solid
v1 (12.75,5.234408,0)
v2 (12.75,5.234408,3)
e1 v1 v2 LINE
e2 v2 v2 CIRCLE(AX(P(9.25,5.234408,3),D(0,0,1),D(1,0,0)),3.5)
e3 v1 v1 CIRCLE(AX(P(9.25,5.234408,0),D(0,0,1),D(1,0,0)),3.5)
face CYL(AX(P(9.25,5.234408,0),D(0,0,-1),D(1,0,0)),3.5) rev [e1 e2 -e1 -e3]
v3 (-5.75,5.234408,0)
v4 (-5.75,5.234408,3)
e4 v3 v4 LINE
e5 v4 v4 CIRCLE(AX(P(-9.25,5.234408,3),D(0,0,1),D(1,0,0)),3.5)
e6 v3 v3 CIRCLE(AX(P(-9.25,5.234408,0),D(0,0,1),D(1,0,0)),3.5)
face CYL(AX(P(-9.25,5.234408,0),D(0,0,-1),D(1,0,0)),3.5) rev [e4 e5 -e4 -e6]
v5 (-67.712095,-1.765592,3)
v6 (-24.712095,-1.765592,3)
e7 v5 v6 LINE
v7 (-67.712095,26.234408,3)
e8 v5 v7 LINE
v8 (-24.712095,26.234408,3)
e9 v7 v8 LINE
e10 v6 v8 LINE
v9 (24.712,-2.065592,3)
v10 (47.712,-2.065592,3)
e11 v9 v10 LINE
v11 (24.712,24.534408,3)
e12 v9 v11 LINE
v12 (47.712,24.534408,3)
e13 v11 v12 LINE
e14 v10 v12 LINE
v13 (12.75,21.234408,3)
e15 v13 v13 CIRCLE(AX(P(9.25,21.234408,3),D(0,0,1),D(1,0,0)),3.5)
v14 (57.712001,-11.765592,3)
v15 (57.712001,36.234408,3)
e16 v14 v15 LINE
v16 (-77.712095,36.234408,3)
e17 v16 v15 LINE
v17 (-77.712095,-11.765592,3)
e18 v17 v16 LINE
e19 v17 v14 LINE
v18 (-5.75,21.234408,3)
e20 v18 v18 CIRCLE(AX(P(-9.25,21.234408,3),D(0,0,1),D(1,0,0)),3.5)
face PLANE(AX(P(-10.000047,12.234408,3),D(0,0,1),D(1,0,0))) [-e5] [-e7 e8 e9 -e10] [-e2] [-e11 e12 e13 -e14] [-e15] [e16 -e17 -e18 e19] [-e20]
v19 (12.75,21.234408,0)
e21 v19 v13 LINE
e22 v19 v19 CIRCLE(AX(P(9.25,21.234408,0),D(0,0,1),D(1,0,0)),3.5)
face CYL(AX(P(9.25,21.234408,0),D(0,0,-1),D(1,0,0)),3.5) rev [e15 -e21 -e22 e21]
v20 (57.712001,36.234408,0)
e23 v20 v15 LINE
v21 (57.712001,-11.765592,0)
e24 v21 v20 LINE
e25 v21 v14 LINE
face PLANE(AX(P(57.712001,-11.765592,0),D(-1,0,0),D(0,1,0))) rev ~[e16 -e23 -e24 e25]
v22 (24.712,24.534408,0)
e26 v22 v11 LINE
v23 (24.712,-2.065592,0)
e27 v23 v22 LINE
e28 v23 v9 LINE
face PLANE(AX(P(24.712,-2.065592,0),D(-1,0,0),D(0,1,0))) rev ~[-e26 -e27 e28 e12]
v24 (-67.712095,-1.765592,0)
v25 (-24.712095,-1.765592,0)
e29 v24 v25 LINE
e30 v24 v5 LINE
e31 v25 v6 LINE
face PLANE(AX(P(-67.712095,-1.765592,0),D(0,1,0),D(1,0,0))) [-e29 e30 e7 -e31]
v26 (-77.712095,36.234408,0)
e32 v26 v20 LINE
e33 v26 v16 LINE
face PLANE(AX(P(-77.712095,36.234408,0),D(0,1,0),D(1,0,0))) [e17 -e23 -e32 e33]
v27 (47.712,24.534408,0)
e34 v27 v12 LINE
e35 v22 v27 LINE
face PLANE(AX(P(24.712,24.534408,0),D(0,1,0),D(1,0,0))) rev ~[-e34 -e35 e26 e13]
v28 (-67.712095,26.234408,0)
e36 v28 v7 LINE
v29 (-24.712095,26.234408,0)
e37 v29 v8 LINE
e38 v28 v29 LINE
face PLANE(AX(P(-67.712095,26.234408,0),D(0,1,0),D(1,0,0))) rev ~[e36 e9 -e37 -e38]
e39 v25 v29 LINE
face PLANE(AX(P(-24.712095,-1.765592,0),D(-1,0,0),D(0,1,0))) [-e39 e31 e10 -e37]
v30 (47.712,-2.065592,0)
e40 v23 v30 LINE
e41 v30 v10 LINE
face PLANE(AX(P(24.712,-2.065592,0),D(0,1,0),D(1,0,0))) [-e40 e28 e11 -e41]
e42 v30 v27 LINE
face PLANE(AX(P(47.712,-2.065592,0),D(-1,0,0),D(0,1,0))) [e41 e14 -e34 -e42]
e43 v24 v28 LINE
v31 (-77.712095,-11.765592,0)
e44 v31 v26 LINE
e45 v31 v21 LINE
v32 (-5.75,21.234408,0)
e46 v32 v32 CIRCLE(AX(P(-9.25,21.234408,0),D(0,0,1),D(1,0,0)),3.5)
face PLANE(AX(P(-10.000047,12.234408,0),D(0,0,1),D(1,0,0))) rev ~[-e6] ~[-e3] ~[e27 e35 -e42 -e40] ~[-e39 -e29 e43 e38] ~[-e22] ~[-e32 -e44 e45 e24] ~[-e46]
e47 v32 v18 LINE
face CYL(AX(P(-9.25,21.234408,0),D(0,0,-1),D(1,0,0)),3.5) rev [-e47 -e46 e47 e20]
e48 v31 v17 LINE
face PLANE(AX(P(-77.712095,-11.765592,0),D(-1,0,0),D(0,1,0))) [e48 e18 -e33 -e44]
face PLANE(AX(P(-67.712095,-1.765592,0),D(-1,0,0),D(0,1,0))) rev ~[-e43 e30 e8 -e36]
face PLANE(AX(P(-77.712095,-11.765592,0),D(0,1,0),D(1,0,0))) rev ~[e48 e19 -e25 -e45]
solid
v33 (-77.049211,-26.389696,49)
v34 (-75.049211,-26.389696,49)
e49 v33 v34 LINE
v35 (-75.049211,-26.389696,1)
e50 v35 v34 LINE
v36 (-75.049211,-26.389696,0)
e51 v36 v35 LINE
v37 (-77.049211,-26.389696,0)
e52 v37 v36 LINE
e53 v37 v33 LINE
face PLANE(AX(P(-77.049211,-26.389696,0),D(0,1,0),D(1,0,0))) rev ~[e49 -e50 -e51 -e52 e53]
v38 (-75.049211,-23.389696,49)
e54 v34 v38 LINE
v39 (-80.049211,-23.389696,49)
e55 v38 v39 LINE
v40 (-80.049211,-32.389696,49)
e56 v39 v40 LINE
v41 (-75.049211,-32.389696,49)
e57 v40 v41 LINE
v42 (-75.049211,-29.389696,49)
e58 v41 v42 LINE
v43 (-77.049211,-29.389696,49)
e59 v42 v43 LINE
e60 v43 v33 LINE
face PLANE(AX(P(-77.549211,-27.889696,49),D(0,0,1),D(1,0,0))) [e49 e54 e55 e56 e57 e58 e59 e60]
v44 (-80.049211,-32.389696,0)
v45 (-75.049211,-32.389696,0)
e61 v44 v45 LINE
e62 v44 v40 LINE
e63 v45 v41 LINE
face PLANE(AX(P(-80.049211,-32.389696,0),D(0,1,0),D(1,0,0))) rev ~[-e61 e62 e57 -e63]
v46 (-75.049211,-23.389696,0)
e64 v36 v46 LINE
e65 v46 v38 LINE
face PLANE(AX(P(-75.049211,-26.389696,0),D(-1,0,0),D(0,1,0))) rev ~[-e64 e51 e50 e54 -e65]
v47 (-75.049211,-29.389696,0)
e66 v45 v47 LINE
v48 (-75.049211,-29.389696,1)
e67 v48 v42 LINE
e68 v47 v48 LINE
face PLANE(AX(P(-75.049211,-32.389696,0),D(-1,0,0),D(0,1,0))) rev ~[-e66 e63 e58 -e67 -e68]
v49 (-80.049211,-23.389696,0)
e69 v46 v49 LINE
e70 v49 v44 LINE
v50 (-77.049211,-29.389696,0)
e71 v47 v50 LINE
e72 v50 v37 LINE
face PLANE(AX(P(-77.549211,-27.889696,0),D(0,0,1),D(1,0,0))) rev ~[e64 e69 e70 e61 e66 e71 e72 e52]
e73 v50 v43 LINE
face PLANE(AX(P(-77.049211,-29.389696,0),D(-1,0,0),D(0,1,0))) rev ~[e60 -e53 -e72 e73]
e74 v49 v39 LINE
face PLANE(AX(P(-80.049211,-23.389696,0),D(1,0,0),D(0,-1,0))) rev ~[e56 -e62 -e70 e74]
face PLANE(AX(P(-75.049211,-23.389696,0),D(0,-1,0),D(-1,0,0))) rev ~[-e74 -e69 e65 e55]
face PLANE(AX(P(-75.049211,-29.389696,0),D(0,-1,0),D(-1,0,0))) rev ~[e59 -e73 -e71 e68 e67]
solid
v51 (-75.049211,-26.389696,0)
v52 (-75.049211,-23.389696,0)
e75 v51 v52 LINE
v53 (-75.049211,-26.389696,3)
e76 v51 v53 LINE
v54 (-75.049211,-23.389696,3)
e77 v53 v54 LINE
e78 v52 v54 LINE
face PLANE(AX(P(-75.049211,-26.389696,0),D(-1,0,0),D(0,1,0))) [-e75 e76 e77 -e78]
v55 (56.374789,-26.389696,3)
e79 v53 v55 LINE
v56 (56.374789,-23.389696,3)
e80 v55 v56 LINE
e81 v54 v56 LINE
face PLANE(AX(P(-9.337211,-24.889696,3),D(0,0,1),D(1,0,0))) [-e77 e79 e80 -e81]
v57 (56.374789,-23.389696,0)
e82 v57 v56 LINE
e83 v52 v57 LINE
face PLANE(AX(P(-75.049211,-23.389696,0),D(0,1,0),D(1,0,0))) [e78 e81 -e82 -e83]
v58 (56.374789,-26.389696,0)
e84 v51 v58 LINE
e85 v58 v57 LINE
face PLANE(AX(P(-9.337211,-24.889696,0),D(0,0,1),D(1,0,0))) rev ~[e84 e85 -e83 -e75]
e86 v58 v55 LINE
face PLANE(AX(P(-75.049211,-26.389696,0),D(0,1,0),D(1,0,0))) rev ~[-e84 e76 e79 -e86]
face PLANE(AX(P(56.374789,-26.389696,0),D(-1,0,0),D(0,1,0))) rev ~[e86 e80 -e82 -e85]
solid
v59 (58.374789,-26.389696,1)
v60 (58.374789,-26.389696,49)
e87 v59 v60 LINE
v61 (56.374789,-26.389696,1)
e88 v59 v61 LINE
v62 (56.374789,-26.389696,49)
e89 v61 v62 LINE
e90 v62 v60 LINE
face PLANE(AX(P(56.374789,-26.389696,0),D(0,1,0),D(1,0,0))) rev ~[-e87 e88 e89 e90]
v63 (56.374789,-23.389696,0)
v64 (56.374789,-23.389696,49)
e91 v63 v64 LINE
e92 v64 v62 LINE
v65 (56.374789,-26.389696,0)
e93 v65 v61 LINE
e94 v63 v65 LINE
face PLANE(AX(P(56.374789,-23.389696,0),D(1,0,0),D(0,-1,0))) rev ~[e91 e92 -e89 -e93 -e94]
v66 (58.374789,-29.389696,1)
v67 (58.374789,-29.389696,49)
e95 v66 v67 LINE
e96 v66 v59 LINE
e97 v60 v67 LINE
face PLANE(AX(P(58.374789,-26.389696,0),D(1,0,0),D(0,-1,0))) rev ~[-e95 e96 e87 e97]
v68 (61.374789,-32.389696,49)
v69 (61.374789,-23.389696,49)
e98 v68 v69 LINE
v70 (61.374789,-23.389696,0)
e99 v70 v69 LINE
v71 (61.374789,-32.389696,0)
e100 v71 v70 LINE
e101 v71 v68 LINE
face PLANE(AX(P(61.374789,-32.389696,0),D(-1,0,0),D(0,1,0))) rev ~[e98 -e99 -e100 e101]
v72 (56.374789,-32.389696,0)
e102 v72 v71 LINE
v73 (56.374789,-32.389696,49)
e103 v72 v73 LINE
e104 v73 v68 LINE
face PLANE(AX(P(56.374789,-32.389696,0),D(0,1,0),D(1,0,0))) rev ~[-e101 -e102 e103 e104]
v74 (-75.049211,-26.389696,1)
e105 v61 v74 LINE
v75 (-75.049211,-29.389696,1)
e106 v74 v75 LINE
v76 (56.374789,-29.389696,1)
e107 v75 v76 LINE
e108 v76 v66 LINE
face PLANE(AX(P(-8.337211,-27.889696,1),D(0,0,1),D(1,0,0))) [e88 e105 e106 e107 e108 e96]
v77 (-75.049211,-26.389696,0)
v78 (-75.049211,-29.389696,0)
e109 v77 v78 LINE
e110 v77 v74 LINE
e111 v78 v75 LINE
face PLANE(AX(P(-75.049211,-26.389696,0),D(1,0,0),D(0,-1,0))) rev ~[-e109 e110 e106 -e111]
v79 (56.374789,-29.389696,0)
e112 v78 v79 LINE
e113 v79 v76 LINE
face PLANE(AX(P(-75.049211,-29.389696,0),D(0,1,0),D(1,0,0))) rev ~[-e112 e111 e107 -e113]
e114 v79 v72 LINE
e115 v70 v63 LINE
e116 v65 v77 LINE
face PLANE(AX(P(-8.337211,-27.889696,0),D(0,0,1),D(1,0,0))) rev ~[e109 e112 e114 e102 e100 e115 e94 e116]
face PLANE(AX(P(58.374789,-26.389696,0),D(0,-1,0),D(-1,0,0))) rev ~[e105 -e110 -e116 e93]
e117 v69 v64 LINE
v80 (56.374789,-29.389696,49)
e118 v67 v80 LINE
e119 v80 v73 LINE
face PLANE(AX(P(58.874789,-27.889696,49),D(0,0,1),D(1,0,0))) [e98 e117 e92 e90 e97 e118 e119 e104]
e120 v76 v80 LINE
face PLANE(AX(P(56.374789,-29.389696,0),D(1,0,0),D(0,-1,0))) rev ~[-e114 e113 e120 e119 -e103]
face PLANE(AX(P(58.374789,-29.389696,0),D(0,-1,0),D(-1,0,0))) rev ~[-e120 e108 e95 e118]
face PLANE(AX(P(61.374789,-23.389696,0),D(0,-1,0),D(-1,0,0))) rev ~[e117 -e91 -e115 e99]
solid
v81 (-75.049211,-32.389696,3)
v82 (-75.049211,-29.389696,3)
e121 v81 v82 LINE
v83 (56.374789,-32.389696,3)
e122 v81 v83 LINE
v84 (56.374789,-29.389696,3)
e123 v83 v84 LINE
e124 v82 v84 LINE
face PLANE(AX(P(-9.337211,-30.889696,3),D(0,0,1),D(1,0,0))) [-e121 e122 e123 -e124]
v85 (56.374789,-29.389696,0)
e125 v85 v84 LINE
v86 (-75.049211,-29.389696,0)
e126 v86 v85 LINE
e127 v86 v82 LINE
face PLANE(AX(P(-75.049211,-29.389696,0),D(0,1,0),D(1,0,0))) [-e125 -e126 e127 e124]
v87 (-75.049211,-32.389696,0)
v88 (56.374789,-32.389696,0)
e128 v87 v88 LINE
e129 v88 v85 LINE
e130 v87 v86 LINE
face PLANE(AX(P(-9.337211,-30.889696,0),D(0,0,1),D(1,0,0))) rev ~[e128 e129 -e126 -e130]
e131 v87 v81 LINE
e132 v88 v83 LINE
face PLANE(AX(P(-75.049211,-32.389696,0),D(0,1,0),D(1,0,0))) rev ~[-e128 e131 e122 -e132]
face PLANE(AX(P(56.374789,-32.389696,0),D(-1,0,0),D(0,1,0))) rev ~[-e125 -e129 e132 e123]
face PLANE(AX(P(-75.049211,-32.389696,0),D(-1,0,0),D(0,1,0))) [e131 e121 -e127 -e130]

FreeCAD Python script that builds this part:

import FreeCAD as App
import Part
import Sketcher

V = App.Vector
Q = App.Units.Quantity


def add_polygon(sketch, points):
    """Adds a closed chain of lines whose ends are joined by coincident constraints."""
    first, n = sketch.GeometryCount, len(points)
    for a, b in zip(points, points[1:] + points[:1]):
        sketch.addGeometry(Part.LineSegment(App.Vector(*a, 0), App.Vector(*b, 0)), False)
    for i in range(n):
        sketch.addConstraint(Sketcher.Constraint("Coincident", first + i, 2, first + (i + 1) % n, 1))

doc = App.newDocument("Part")
body = doc.addObject("PartDesign::Body", "Body")

# Sketch on XY plane
sketch1 = body.newObject("Sketcher::SketchObject", "Sketch")
sketch1.AttachmentSupport = (doc.getObject("XY_Plane"), [""])
sketch1.MapMode = "FlatFace"
add_polygon(sketch1, [(-77.7, 36.2), (-77.7, -11.8), (57.7, -11.8), (57.7, 36.2)])  # lines 0-3
sketch1.addGeometry(Part.Circle(V(-9.2, 5.2, 0), V(0, 0, 1), 3.5), False)  # 4
sketch1.addGeometry(Part.Circle(V(9.2, 5.2, 0), V(0, 0, 1), 3.5), False)  # 5
add_polygon(sketch1, [(47.7, -2.1), (24.7, -2.1), (24.7, 24.5), (47.7, 24.5)])  # lines 6-9
add_polygon(sketch1, [(-24.7, -1.8), (-67.7, -1.8), (-67.7, 26.2), (-24.7, 26.2)])  # lines 10-13
sketch1.addGeometry(Part.Circle(V(-9.2, 21.2, 0), V(0, 0, 1), 3.5), False)  # 14
sketch1.addGeometry(Part.Circle(V(9.2, 21.2, 0), V(0, 0, 1), 3.5), False)  # 15
sketch1.addConstraint(Sketcher.Constraint("Vertical", 0))
sketch1.addConstraint(Sketcher.Constraint("Horizontal", 1))
sketch1.addConstraint(Sketcher.Constraint("Vertical", 2))
sketch1.addConstraint(Sketcher.Constraint("Horizontal", 3))
sketch1.addConstraint(Sketcher.Constraint("Horizontal", 6))
sketch1.addConstraint(Sketcher.Constraint("Vertical", 7))
sketch1.addConstraint(Sketcher.Constraint("Horizontal", 8))
sketch1.addConstraint(Sketcher.Constraint("Vertical", 9))
sketch1.addConstraint(Sketcher.Constraint("Horizontal", 10))
sketch1.addConstraint(Sketcher.Constraint("Vertical", 11))
sketch1.addConstraint(Sketcher.Constraint("Horizontal", 12))
sketch1.addConstraint(Sketcher.Constraint("Vertical", 13))
sketch1.addConstraint(Sketcher.Constraint("Equal", 4, 5))
sketch1.addConstraint(Sketcher.Constraint("Equal", 5, 14))
sketch1.addConstraint(Sketcher.Constraint("Equal", 14, 15))
sketch1.addConstraint(Sketcher.Constraint("Symmetric", 4, 3, 5, 3, -2))
sketch1.addConstraint(Sketcher.Constraint("Symmetric", 14, 3, 15, 3, -2))
sketch1.addConstraint(Sketcher.Constraint("Vertical", 4, 3, 14, 3))
sketch1.addConstraint(Sketcher.Constraint("Diameter", 4, Q("7 mm")))
sketch1.addConstraint(Sketcher.Constraint("DistanceX", 6, 2, 6, 1, Q("23 mm")))
sketch1.addConstraint(Sketcher.Constraint("DistanceX", 10, 2, 10, 1, Q("43 mm")))
sketch1.addConstraint(Sketcher.Constraint("DistanceY", 0, 2, 0, 1, Q("48 mm")))
sketch1.addConstraint(Sketcher.Constraint("DistanceY", 11, 1, 11, 2, Q("28 mm")))
sketch1.addConstraint(Sketcher.Constraint("DistanceY", 7, 1, 7, 2, Q("26.6 mm")))
sketch1.addConstraint(Sketcher.Constraint("DistanceY", 4, 3, 14, 3, Q("16 mm")))
sketch1.addConstraint(Sketcher.Constraint("DistanceY", 0, 2, 4, 3, Q("17 mm")))
sketch1.addConstraint(Sketcher.Constraint("DistanceX", 6, 2, 1, 2, Q("33 mm")))
sketch1.addConstraint(Sketcher.Constraint("DistanceX", 0, 2, 10, 2, Q("10 mm")))
sketch1.addConstraint(Sketcher.Constraint("DistanceY", 0, 2, 10, 2, Q("10 mm")))
sketch1.addConstraint(Sketcher.Constraint("DistanceX", 4, 3, 5, 3, Q("18.5 mm")))
sketch1.addConstraint(Sketcher.Constraint("DistanceY", 6, 2, 5, 3, Q("7.3 mm")))
sketch1.addConstraint(Sketcher.Constraint("DistanceX", -1, 1, 1, 2, Q("57.712001 mm")))
sketch1.addConstraint(Sketcher.Constraint("DistanceX", 1, 1, 1, 2, Q("135.424095 mm")))
sketch1.addConstraint(Sketcher.Constraint("DistanceY", -1, 1, 4, 3, Q("5.234408 mm")))
pad1 = body.newObject("PartDesign::Pad", "Pad")
pad1.Profile = sketch1
pad1.Length = 3
body2 = doc.addObject("PartDesign::Body", "Body001")
body2.AllowCompound = True

# Sketch on XY plane
sketch2 = body2.newObject("Sketcher::SketchObject", "Sketch001")
sketch2.AttachmentSupport = (doc.getObject("XY_Plane001"), [""])
sketch2.MapMode = "FlatFace"
add_polygon(sketch2, [(56.4, -23.4), (56.4, -26.4), (58.4, -26.4), (58.4, -29.4), (56.4, -29.4), (56.4, -32.4), (61.4, -32.4), (61.4, -23.4)])  # lines 0-7
add_polygon(sketch2, [(-77, -29.4), (-77, -26.4), (-75, -26.4), (-75, -23.4), (-80, -23.4), (-80, -32.4), (-75, -32.4), (-75, -29.4)])  # lines 8-15
sketch2.addConstraint(Sketcher.Constraint("Vertical", 0))
sketch2.addConstraint(Sketcher.Constraint("Horizontal", 1))
sketch2.addConstraint(Sketcher.Constraint("Vertical", 2))
sketch2.addConstraint(Sketcher.Constraint("Horizontal", 3))
sketch2.addConstraint(Sketcher.Constraint("Vertical", 4))
sketch2.addConstraint(Sketcher.Constraint("Horizontal", 5))
sketch2.addConstraint(Sketcher.Constraint("Vertical", 6))
sketch2.addConstraint(Sketcher.Constraint("Horizontal", 7))
sketch2.addConstraint(Sketcher.Constraint("Vertical", 8))
sketch2.addConstraint(Sketcher.Constraint("Horizontal", 9))
sketch2.addConstraint(Sketcher.Constraint("Vertical", 10))
sketch2.addConstraint(Sketcher.Constraint("Horizontal", 11))
sketch2.addConstraint(Sketcher.Constraint("Vertical", 12))
sketch2.addConstraint(Sketcher.Constraint("Horizontal", 13))
sketch2.addConstraint(Sketcher.Constraint("Vertical", 14))
sketch2.addConstraint(Sketcher.Constraint("Horizontal", 15))
sketch2.addConstraint(Sketcher.Constraint("Horizontal", 1, 2, 8, 2))
sketch2.addConstraint(Sketcher.Constraint("Horizontal", 7, 2, 10, 2))
sketch2.addConstraint(Sketcher.Constraint("Horizontal", 5, 2, 12, 2))
sketch2.addConstraint(Sketcher.Constraint("Horizontal", 3, 2, 14, 2))
sketch2.addConstraint(Sketcher.Constraint("Vertical", 0, 2, 3, 2))
sketch2.addConstraint(Sketcher.Constraint("Vertical", 10, 2, 13, 2))
sketch2.addConstraint(Sketcher.Constraint("Equal", 3, 9))
sketch2.addConstraint(Sketcher.Constraint("Equal", 7, 11))
sketch2.addConstraint(Sketcher.Constraint("Equal", 0, 2))
sketch2.addConstraint(Sketcher.Constraint("Equal", 2, 4))
sketch2.addConstraint(Sketcher.Constraint("DistanceX", 1, 1, 1, 2, Q("2 mm")))
sketch2.addConstraint(Sketcher.Constraint("DistanceX", 5, 1, 5, 2, Q("5 mm")))
sketch2.addConstraint(Sketcher.Constraint("DistanceY", 0, 2, 0, 1, Q("3 mm")))
sketch2.addConstraint(Sketcher.Constraint("DistanceX", 8, 2, 0, 2, Q("133.424 mm")))
sketch2.addConstraint(Sketcher.Constraint("DistanceX", -1, 1, 0, 2, Q("56.374789 mm")))
sketch2.addConstraint(Sketcher.Constraint("DistanceY", 0, 2, -1, 1, Q("26.389696 mm")))
pad2 = body2.newObject("PartDesign::Pad", "Pad001")
pad2.Profile = sketch2
pad2.Length = 49

# Sketch on XY plane
sketch3 = body2.newObject("Sketcher::SketchObject", "Sketch002")
sketch3.AttachmentSupport = (doc.getObject("XY_Plane001"), [""])
sketch3.MapMode = "FlatFace"
add_polygon(sketch3, [(-75, -26.4), (-75, -29.4), (58.4, -29.4), (58.4, -26.4)])  # lines 0-3
sketch3.addConstraint(Sketcher.Constraint("Vertical", 0))
sketch3.addConstraint(Sketcher.Constraint("Horizontal", 1))
sketch3.addConstraint(Sketcher.Constraint("Vertical", 2))
sketch3.addConstraint(Sketcher.Constraint("Horizontal", 3))
sketch3.addConstraint(Sketcher.Constraint("DistanceY", 0, 2, 0, 1, Q("3 mm")))
sketch3.addConstraint(Sketcher.Constraint("DistanceX", 1, 1, 1, 2, Q("133.424 mm")))
sketch3.addConstraint(Sketcher.Constraint("DistanceX", 0, 2, -1, 1, Q("75.049211 mm")))
sketch3.addConstraint(Sketcher.Constraint("DistanceY", 0, 2, -1, 1, Q("29.389696 mm")))
pad3 = body2.newObject("PartDesign::Pad", "Pad002")
pad3.Profile = sketch3
pad3.Length = 1
body3 = doc.addObject("PartDesign::Body", "Body002")
body3.AllowCompound = True

# Sketch on XY plane
sketch4 = body3.newObject("Sketcher::SketchObject", "Sketch003")
sketch4.AttachmentSupport = (doc.getObject("XY_Plane002"), [""])
sketch4.MapMode = "FlatFace"
add_polygon(sketch4, [(-75, -29.4), (-75, -32.4), (56.4, -32.4), (56.4, -29.4)])  # lines 0-3
add_polygon(sketch4, [(-75, -23.4), (-75, -26.4), (56.4, -26.4), (56.4, -23.4)])  # lines 4-7
sketch4.addConstraint(Sketcher.Constraint("Vertical", 0))
sketch4.addConstraint(Sketcher.Constraint("Horizontal", 1))
sketch4.addConstraint(Sketcher.Constraint("Vertical", 2))
sketch4.addConstraint(Sketcher.Constraint("Horizontal", 3))
sketch4.addConstraint(Sketcher.Constraint("Vertical", 4))
sketch4.addConstraint(Sketcher.Constraint("Horizontal", 5))
sketch4.addConstraint(Sketcher.Constraint("Vertical", 6))
sketch4.addConstraint(Sketcher.Constraint("Horizontal", 7))
sketch4.addConstraint(Sketcher.Constraint("Vertical", 3, 2, 4, 2))
sketch4.addConstraint(Sketcher.Constraint("Vertical", 2, 2, 5, 2))
sketch4.addConstraint(Sketcher.Constraint("Equal", 2, 4))
sketch4.addConstraint(Sketcher.Constraint("DistanceY", 0, 2, 0, 1, Q("3 mm")))
sketch4.addConstraint(Sketcher.Constraint("DistanceY", 3, 2, 4, 2, Q("3 mm")))
sketch4.addConstraint(Sketcher.Constraint("DistanceX", 1, 1, 1, 2, Q("131.424 mm")))
sketch4.addConstraint(Sketcher.Constraint("DistanceX", 0, 2, -1, 1, Q("75.049211 mm")))
sketch4.addConstraint(Sketcher.Constraint("DistanceY", 0, 2, -1, 1, Q("32.389696 mm")))
pad4 = body3.newObject("PartDesign::Pad", "Pad003")
pad4.Profile = sketch4
pad4.Length = 3

doc.recompute()
